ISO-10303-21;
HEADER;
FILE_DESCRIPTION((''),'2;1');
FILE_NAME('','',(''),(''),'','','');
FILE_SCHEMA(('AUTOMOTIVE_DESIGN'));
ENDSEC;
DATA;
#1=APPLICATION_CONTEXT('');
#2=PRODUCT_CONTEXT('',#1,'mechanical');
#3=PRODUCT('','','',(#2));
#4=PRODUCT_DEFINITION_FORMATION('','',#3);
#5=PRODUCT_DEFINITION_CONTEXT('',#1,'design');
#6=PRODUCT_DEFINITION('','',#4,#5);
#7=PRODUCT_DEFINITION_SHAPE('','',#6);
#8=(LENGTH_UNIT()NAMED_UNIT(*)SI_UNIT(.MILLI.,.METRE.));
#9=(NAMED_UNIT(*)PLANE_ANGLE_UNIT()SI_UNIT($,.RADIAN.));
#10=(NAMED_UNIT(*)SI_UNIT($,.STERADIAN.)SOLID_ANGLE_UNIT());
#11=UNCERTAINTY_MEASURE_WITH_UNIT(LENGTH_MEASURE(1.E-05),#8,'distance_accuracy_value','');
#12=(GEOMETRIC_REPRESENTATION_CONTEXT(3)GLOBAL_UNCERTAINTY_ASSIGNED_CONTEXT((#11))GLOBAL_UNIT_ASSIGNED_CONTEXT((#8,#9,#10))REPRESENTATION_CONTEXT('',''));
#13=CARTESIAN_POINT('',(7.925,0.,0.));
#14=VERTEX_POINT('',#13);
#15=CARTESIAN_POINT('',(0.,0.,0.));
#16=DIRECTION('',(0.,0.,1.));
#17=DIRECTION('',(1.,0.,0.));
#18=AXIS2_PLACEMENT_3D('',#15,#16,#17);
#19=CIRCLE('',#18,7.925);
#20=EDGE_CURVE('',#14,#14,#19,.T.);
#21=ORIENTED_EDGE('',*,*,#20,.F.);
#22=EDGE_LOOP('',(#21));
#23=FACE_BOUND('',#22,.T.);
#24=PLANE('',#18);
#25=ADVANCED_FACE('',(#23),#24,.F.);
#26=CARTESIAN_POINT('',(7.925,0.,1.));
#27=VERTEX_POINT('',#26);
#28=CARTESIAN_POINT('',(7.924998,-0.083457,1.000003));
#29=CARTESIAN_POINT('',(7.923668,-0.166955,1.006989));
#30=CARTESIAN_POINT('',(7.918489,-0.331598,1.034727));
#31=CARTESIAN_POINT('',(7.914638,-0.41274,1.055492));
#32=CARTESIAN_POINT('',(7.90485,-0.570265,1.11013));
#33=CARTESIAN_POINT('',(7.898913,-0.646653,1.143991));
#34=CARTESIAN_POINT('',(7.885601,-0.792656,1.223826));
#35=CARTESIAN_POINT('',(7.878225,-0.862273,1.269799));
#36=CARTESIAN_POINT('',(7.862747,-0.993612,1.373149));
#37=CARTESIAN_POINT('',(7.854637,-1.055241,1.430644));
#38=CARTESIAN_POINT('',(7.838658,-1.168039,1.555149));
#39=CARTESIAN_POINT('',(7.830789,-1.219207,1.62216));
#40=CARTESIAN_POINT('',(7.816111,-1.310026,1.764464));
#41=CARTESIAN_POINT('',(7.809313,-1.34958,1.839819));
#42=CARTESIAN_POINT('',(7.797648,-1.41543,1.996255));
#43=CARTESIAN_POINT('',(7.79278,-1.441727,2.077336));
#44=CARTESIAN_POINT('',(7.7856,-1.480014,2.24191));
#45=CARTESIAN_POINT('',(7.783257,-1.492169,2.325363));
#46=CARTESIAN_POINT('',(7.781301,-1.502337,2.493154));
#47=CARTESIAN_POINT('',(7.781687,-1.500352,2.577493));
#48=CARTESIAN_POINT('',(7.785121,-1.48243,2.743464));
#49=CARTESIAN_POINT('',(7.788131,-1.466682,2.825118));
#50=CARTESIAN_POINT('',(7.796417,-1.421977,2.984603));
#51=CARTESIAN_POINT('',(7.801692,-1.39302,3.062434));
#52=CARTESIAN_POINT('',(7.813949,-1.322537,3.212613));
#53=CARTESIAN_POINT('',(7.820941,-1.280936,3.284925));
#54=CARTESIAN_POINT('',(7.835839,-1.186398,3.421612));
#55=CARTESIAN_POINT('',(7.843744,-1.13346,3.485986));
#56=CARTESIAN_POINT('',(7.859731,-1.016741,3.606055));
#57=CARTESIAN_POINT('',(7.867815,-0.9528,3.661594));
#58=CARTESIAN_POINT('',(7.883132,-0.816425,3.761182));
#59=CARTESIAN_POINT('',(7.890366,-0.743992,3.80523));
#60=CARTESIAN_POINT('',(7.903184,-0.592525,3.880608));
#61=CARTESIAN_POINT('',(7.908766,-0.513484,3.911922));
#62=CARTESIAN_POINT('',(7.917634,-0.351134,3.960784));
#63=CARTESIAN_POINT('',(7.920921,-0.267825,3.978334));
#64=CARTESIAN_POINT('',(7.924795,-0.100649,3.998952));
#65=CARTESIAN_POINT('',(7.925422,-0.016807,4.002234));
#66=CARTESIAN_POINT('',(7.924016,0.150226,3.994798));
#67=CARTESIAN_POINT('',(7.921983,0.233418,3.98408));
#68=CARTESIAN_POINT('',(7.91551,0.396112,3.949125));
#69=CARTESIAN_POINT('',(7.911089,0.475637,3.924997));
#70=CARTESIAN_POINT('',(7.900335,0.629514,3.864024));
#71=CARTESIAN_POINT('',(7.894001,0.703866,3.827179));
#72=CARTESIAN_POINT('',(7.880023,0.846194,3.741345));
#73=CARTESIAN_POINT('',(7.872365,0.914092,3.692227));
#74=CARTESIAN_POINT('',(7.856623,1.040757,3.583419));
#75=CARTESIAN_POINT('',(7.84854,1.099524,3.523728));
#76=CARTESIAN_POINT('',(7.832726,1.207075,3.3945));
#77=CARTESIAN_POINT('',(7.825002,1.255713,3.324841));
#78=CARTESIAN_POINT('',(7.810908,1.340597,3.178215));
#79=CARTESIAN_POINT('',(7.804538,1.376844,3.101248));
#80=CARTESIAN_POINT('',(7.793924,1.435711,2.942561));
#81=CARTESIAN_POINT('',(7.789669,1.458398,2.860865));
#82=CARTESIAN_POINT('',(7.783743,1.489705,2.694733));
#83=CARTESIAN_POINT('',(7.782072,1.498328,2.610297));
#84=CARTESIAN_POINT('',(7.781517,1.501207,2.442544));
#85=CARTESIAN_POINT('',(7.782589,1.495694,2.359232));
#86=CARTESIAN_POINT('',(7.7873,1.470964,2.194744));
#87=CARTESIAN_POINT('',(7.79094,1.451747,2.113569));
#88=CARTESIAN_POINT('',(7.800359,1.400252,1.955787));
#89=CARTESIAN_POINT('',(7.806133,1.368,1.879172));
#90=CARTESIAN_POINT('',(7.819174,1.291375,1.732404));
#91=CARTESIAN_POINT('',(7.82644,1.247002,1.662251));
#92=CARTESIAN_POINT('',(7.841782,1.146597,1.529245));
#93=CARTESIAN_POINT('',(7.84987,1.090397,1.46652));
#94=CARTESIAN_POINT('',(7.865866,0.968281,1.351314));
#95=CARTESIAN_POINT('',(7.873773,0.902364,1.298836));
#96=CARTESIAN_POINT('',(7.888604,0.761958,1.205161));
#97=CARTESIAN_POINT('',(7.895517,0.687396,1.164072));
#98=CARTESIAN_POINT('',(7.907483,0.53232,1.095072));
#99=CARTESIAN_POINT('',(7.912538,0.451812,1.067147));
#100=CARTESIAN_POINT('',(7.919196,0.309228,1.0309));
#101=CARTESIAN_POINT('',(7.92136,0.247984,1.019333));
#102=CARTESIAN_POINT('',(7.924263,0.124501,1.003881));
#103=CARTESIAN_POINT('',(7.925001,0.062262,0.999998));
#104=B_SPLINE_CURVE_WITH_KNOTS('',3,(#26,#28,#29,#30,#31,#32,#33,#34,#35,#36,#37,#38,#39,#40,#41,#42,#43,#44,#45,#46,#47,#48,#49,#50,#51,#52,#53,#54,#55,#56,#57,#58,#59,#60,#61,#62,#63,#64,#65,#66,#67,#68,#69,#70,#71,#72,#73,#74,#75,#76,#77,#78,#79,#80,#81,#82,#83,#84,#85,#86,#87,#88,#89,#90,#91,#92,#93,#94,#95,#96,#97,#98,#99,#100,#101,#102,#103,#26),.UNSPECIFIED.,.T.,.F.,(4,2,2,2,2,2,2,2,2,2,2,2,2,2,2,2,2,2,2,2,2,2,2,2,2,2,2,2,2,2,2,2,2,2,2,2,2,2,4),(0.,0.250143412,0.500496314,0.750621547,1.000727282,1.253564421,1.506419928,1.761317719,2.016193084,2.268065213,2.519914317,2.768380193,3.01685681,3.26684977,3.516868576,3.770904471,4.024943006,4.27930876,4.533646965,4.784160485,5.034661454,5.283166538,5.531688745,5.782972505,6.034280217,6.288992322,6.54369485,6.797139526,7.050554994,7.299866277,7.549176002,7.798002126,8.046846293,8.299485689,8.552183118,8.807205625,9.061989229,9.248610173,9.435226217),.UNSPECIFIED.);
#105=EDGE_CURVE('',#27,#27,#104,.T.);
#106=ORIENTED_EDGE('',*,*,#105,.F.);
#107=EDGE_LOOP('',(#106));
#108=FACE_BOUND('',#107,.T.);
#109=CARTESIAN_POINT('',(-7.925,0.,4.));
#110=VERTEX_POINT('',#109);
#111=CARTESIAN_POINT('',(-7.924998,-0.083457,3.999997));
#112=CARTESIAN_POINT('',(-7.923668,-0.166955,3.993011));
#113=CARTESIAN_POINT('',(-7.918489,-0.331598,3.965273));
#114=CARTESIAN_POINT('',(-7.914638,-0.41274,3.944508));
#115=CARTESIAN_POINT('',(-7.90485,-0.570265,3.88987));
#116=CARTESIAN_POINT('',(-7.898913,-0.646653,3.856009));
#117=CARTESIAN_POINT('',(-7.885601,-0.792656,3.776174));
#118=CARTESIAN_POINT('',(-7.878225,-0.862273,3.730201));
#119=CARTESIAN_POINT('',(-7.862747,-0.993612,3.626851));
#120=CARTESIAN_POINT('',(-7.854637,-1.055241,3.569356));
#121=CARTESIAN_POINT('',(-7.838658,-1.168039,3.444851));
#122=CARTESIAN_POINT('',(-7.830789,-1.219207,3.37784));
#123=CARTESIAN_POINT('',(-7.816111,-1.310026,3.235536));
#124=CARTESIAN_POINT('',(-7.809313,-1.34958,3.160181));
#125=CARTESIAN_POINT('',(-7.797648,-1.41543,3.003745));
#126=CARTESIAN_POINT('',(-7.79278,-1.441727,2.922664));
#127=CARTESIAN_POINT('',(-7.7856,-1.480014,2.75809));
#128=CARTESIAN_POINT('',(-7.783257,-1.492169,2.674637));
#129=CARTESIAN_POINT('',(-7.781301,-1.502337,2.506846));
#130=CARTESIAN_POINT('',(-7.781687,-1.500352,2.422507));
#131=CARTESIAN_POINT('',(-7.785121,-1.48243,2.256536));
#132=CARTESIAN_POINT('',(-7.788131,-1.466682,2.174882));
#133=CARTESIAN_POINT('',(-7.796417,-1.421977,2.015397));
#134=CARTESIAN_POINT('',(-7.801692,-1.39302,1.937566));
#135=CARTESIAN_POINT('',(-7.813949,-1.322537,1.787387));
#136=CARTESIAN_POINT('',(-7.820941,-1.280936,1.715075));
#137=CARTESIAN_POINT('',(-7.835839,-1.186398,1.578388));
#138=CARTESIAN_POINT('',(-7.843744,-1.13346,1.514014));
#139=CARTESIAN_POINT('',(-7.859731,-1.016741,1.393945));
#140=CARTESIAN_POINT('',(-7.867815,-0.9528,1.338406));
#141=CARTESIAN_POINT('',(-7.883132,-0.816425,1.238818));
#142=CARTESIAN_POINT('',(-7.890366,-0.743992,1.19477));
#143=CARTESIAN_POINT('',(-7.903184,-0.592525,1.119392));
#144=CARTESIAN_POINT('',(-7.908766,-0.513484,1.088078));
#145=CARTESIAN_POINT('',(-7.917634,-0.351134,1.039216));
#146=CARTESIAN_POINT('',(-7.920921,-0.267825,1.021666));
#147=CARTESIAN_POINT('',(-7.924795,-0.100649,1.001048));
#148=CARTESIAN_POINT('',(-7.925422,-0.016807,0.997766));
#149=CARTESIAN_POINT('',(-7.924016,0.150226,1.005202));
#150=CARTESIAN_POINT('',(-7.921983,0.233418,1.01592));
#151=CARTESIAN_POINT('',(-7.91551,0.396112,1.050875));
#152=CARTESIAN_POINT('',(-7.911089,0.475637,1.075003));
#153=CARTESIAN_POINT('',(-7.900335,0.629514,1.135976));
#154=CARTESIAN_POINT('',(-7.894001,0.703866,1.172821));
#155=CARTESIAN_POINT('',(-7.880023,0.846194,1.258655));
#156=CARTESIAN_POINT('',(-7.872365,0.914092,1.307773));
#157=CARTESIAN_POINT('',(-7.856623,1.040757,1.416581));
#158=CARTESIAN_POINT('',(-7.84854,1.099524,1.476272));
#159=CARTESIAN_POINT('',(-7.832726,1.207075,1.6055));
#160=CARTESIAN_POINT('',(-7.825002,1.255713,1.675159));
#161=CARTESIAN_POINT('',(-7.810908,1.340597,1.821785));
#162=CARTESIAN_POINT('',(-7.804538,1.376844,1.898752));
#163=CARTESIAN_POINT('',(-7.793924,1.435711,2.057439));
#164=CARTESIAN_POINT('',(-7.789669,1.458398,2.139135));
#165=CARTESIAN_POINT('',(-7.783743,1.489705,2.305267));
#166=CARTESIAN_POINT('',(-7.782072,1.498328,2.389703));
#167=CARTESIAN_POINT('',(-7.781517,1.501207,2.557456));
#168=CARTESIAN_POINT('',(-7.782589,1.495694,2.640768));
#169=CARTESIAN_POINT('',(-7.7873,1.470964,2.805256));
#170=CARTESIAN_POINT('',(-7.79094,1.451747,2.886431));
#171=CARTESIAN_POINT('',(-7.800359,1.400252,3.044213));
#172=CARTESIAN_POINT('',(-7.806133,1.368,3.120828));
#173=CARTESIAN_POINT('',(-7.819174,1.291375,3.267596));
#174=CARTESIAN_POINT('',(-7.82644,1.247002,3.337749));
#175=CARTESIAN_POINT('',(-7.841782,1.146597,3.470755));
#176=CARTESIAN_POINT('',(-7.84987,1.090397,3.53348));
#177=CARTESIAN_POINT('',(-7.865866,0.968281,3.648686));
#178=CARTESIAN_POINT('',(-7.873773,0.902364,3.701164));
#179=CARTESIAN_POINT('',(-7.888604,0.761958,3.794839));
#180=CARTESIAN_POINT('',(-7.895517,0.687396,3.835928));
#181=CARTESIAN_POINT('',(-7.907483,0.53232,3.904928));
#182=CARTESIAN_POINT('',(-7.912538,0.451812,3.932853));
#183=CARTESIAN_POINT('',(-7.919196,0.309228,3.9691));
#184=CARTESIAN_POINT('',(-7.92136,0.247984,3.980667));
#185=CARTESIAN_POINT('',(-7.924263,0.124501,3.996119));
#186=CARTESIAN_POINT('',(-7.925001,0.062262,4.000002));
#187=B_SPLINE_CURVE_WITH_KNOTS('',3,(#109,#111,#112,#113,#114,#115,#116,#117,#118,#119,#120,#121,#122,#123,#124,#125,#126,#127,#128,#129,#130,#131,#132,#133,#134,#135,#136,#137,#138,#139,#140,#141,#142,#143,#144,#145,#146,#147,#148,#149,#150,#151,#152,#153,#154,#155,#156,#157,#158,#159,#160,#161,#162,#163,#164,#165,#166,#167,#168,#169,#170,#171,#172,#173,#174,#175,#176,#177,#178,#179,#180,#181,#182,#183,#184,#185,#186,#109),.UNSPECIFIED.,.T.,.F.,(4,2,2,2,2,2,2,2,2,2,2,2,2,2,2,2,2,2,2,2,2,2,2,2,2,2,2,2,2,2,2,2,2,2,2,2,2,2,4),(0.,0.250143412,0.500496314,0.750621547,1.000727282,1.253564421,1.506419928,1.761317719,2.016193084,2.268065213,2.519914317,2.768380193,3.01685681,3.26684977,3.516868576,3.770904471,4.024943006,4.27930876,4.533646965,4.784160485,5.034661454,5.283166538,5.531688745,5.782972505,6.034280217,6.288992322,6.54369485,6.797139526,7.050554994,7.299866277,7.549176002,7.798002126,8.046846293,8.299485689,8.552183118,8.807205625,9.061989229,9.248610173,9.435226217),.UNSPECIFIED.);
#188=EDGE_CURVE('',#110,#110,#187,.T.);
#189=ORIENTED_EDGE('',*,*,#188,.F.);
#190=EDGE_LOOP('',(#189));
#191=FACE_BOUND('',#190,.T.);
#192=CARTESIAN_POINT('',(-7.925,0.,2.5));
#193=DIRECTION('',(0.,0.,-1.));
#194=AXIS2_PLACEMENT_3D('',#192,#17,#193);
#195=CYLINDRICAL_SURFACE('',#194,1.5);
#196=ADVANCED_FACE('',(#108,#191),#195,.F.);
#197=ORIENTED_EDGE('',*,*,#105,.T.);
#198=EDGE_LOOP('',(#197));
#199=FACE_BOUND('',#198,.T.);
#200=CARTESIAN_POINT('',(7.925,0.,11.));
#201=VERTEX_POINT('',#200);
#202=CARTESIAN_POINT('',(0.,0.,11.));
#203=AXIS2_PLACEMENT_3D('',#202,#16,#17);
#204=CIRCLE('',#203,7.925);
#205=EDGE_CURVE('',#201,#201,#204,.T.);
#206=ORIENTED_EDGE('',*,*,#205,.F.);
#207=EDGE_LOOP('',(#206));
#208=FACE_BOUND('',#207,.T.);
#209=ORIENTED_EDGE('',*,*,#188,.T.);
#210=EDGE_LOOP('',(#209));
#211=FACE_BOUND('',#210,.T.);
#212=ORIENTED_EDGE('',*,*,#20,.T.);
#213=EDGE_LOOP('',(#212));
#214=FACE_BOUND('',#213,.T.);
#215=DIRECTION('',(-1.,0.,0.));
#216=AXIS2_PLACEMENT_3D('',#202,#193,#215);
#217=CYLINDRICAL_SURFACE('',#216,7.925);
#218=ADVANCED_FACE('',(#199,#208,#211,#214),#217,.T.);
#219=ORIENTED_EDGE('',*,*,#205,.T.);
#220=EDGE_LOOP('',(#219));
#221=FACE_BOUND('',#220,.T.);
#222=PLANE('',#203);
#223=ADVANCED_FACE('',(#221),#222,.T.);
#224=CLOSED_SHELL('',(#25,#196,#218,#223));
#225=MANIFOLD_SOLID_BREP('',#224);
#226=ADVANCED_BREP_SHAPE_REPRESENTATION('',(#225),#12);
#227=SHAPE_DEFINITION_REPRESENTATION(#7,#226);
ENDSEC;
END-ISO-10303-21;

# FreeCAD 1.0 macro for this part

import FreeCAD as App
import Part
import Sketcher

V = App.Vector
Q = App.Units.Quantity

doc = App.newDocument("Part")
params = doc.addObject("Spreadsheet::Sheet", "Params")
for row, (alias, value) in enumerate([
    ("sketch1_diameter", "15.85 mm"),
    ("pad1_length", "11 mm"),
    ("sketch2_diameter", "3 mm"),
], start=1):
    params.set(f"A{row}", alias)
    params.set(f"B{row}", "=" + value)
    params.setAlias(f"B{row}", alias)

body = doc.addObject("PartDesign::Body", "Body")

sketch1 = body.newObject("Sketcher::SketchObject", "Sketch")
sketch1.AttachmentSupport = (doc.getObject("XY_Plane"), [""])
sketch1.MapMode = "FlatFace"
sketch1.addGeometry(Part.Circle(V(0, 0, 0), V(0, 0, 1), 8), False)
sketch1.addConstraint([
    Sketcher.Constraint("Coincident", 0, 3, -1, 1),
    Sketcher.Constraint("Diameter", 0, Q("15.85 mm")),
])
sketch1.setExpression("Constraints[1]", "Params.sketch1_diameter")
pad1 = body.newObject("PartDesign::Pad", "Pad")
pad1.Profile = sketch1
pad1.setExpression("Length", "Params.pad1_length")

sketch2 = body.newObject("Sketcher::SketchObject", "Sketch001")
sketch2.AttachmentSupport = (doc.getObject("YZ_Plane"), [""])
sketch2.MapMode = "FlatFace"
sketch2.addGeometry(Part.Circle(V(0, 2.5, 0), V(0, 0, 1), 1.5), False)
sketch2.addConstraint([
    Sketcher.Constraint("PointOnObject", 0, 3, -2),
    Sketcher.Constraint("Diameter", 0, Q("3 mm")),
    Sketcher.Constraint("DistanceY", -1, 1, 0, 3, Q("2.5 mm")),
])
sketch2.setExpression("Constraints[1]", "Params.sketch2_diameter")
pocket1 = body.newObject("PartDesign::Pocket", "Pocket")
pocket1.Profile = sketch2
pocket1.Type = "ThroughAll"
pocket1.Midplane = True

doc.recompute()
